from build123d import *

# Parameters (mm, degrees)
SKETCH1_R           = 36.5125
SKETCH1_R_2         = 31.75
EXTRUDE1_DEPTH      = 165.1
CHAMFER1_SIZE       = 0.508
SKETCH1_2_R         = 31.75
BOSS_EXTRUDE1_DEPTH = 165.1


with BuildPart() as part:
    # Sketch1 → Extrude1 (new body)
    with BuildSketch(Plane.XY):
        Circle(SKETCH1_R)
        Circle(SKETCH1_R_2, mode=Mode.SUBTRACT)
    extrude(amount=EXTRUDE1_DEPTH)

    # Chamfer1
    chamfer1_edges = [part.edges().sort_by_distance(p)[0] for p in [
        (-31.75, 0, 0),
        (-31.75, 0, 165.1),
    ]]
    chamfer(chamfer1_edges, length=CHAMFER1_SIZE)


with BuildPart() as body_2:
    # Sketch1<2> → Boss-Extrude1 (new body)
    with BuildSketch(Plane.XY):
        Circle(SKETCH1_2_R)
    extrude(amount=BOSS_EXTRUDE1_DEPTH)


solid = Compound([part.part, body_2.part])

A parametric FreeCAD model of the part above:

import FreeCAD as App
import Part
import Sketcher

V = App.Vector
Q = App.Units.Quantity


def edges_at(feature, points):
    """Names of the edges that pass closest to the given points."""
    edges = feature.Shape.Edges
    near = lambda p: min(range(len(edges)), key=lambda i: edges[i].distToShape(Part.Vertex(*p))[0])
    return sorted({f"Edge{near(p) + 1}" for p in points})

doc = App.newDocument("Part")
body = doc.addObject("PartDesign::Body", "Body")

# Sketch on XY plane
sketch1 = body.newObject("Sketcher::SketchObject", "Sketch")
sketch1.AttachmentSupport = (doc.getObject("XY_Plane"), [""])
sketch1.MapMode = "FlatFace"
sketch1.addGeometry([
    Part.Circle(V(0, 0, 0), V(0, 0, 1), 37),
    Part.Circle(V(0, 0, 0), V(0, 0, 1), 32),
], False)
sketch1.addConstraint([
    Sketcher.Constraint("Coincident", 0, 3, -1, 1),
    Sketcher.Constraint("Coincident", 1, 3, -1, 1),
    Sketcher.Constraint("Diameter", 1, Q("2.5 in")),
    Sketcher.Constraint("Diameter", 0, Q("2.875 in")),
])
pad1 = body.newObject("PartDesign::Pad", "Pad")
pad1.Profile = sketch1
pad1.Length = Q("6.5 in")
doc.recompute()

chamfer = body.newObject("PartDesign::Chamfer", "Chamfer")
chamfer.Base = (pad1, edges_at(pad1, [(-31.75, 0, 0), (-31.75, 0, 165.1)]))
chamfer.Size = Q("0.02 in")
body2 = doc.addObject("PartDesign::Body", "Body001")

# Sketch on XY plane
sketch2 = body2.newObject("Sketcher::SketchObject", "Sketch001")
sketch2.AttachmentSupport = (doc.getObject("XY_Plane001"), [""])
sketch2.MapMode = "FlatFace"
sketch2.addGeometry(Part.Circle(V(0, 0, 0), V(0, 0, 1), 32), False)
sketch2.addConstraint([
    Sketcher.Constraint("Coincident", 0, 3, -1, 1),
    Sketcher.Constraint("Diameter", 0, Q("2.5 in")),
])
pad2 = body2.newObject("PartDesign::Pad", "Pad001")
pad2.Profile = sketch2
pad2.Length = Q("6.5 in")

doc.recompute()
